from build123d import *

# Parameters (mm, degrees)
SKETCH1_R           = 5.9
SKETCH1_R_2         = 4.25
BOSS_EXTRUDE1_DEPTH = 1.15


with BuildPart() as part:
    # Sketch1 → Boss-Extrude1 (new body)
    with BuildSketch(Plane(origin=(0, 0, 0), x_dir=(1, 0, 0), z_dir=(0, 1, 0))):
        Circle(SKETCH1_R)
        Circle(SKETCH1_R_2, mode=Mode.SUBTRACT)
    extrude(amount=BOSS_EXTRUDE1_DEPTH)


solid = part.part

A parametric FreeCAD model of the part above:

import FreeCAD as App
import Part
import Sketcher
from FreeCAD import Vector

doc = App.newDocument("Part")
body = doc.addObject("PartDesign::Body", "Body")

# Sketch on XZ plane
sketch1 = body.newObject("Sketcher::SketchObject", "Sketch")
sketch1.AttachmentSupport = (doc.getObject("XZ_Plane"), [""])
sketch1.MapMode = "FlatFace"
sketch1.addGeometry([
    Part.Circle(Vector(0, 0, 0), Vector(0, 0, 1), 5.9),
    Part.Circle(Vector(0, 0, 0), Vector(0, 0, 1), 4.25),
], False)
sketch1.addConstraint([
    Sketcher.Constraint("Coincident", 0, 3, -1, 1),
    Sketcher.Constraint("Coincident", 1, 3, -1, 1),
    Sketcher.Constraint("Diameter", 0, 11.8),
    Sketcher.Constraint("Diameter", 1, 8.5),
])
pad1 = body.newObject("PartDesign::Pad", "Pad")
pad1.Profile = sketch1
pad1.Length = 1.15
pad1.Reversed = True

doc.recompute()
